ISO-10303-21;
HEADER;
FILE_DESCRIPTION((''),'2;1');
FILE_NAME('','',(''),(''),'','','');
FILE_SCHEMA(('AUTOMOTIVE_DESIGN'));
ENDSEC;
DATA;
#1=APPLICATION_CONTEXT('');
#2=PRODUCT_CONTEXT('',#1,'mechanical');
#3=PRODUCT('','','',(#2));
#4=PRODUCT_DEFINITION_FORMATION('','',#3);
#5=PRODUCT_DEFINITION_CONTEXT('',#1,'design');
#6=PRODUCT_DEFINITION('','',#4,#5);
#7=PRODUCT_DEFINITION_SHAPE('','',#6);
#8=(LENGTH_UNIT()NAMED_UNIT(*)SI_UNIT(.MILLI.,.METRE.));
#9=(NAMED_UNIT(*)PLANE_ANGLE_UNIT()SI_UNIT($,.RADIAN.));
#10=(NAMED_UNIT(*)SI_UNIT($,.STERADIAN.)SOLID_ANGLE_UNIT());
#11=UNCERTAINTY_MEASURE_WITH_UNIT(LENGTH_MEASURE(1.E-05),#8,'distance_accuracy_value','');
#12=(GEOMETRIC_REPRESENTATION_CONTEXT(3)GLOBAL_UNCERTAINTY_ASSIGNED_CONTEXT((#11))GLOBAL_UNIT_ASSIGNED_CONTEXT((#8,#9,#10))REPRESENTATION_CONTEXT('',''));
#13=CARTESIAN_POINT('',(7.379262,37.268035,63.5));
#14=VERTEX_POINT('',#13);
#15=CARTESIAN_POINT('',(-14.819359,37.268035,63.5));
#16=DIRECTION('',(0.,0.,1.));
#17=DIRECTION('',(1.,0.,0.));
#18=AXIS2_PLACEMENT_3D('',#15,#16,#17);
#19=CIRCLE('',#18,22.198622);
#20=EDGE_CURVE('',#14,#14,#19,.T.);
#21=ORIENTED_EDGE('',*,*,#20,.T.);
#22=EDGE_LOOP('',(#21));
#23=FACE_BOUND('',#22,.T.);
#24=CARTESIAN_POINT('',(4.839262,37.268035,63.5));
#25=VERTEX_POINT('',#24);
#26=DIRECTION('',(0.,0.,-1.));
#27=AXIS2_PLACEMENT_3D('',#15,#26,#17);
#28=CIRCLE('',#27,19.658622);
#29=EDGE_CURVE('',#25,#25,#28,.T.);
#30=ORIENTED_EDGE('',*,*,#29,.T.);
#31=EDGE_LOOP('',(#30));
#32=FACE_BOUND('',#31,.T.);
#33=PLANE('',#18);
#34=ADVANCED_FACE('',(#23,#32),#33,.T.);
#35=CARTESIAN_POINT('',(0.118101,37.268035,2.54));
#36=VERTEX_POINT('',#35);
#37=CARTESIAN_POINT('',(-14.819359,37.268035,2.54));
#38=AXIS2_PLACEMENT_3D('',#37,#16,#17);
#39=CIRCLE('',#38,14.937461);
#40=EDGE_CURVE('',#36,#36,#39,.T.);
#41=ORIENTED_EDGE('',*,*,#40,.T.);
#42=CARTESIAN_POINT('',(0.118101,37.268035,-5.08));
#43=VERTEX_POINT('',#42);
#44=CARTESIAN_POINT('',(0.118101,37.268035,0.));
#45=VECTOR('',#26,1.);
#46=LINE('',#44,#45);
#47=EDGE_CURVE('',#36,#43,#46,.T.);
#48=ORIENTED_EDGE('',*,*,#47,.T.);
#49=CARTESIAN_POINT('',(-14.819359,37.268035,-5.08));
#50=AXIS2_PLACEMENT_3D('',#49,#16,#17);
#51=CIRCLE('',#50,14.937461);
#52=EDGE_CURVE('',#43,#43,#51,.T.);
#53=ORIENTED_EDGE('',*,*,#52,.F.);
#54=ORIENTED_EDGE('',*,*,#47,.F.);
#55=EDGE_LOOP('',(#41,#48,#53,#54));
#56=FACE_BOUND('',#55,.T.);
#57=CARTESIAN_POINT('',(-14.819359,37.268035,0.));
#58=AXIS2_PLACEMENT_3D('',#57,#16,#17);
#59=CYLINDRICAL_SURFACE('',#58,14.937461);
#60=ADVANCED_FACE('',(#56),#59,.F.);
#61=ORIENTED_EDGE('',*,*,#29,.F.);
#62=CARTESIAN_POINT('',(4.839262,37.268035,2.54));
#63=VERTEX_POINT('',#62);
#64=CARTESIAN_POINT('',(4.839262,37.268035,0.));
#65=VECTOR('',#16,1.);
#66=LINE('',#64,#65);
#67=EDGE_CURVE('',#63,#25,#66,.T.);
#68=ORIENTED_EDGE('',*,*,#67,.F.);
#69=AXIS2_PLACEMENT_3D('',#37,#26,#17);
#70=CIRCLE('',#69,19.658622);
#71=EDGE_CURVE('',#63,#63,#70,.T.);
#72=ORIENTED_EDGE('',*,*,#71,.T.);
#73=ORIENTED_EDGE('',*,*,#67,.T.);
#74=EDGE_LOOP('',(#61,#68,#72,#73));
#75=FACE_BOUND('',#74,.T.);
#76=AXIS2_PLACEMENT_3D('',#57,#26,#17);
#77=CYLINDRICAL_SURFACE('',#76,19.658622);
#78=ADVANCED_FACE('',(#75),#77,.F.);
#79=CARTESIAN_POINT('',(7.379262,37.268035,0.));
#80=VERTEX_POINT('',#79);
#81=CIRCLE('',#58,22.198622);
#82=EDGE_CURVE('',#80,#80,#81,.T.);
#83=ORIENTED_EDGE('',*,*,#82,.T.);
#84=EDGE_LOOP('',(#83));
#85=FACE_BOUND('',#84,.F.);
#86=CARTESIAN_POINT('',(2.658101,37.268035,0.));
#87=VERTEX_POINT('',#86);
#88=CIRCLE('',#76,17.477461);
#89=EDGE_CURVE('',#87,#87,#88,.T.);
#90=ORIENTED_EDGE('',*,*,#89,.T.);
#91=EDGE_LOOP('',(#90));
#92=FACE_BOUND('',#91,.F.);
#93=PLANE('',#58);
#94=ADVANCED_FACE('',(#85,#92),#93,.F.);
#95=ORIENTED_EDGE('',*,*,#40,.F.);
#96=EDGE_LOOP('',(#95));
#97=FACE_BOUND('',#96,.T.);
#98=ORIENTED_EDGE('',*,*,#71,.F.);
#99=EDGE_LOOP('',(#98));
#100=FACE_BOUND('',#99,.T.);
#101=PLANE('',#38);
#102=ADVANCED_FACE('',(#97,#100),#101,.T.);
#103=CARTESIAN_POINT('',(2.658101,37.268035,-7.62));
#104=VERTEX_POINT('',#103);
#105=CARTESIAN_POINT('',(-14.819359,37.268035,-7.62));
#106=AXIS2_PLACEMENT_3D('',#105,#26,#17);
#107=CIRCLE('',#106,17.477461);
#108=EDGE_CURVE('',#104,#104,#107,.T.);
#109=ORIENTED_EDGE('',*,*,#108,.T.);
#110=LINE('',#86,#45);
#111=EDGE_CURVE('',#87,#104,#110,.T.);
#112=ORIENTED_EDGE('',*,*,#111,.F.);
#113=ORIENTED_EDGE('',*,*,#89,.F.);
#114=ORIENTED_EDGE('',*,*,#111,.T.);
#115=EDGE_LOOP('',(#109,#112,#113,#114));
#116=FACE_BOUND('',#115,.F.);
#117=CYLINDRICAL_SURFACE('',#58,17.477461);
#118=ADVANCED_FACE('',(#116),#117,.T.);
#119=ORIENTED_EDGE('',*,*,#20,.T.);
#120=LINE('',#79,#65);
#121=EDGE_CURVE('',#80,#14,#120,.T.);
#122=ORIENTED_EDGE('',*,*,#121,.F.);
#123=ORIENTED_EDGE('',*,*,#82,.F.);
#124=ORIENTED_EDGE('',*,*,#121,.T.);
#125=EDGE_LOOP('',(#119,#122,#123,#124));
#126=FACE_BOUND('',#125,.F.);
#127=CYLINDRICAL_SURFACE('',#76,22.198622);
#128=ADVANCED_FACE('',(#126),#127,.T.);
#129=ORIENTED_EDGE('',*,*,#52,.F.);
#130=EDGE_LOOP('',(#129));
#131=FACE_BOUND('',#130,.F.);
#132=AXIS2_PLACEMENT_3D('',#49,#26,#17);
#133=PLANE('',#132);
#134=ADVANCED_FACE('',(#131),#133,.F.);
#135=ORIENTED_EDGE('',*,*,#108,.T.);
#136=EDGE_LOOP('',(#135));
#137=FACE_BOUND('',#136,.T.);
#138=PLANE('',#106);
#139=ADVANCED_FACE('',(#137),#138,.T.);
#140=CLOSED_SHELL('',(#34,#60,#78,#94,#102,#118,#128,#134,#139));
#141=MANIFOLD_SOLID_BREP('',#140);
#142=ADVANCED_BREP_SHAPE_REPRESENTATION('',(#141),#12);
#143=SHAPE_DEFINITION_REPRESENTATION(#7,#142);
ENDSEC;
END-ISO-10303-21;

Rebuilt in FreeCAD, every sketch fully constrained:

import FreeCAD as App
import Part
import Sketcher
Q = App.Units.Quantity


def faces_at(feature, points):
    """Names of the faces that lie closest to the given points."""
    faces = feature.Shape.Faces
    near = lambda p: min(range(len(faces)), key=lambda i: faces[i].distToShape(Part.Vertex(*p))[0])
    return sorted({f"Face{near(p) + 1}" for p in points})

doc = App.newDocument("Part")
body = doc.addObject("PartDesign::Body", "Body")

# Sketch on XY plane
sketch1 = doc.addObject("Sketcher::SketchObject", "Sketch")
body.addObject(sketch1)
sketch1.AttachmentSupport = (doc.XY_Plane, [""])
sketch1.MapMode = "FlatFace"
sketch1.addGeometry(Part.Circle(App.Vector(-14.819359, 37.268035, 0), App.Vector(0, 0, 1), 22.198622), False)
sketch1.addConstraint(Sketcher.Constraint("Diameter", 0, 44.397243))
sketch1.addConstraint(Sketcher.Constraint("DistanceX", 0, 3, -1, 1, 14.819359))
sketch1.addConstraint(Sketcher.Constraint("DistanceY", -1, 1, 0, 3, 37.268035))
pad1 = doc.addObject("PartDesign::Pad", "Pad")
body.addObject(pad1)
pad1.Profile = sketch1
pad1.Length = Q("2.5 in")

# Sketch on XY plane
sketch2 = doc.addObject("Sketcher::SketchObject", "Sketch001")
body.addObject(sketch2)
sketch2.AttachmentSupport = (doc.XY_Plane, [""])
sketch2.MapMode = "FlatFace"
sketch2.addGeometry(Part.Circle(App.Vector(-14.819359, 37.268035, 0), App.Vector(0, 0, 1), 17.477461), False)
sketch2.addConstraint(Sketcher.Constraint("Diameter", 0, 34.954922))
sketch2.addConstraint(Sketcher.Constraint("DistanceX", 0, 3, -1, 1, 14.819359))
sketch2.addConstraint(Sketcher.Constraint("DistanceY", -1, 1, 0, 3, 37.268035))
pad2 = doc.addObject("PartDesign::Pad", "Pad001")
body.addObject(pad2)
pad2.Profile = sketch2
pad2.Length = Q("0.3 in")
pad2.Reversed = True
doc.recompute()

thickness = doc.addObject("PartDesign::Thickness", "Thickness")
body.addObject(thickness)
thickness.Base = (pad2, faces_at(pad2, [(-14.819, 37.268, 63.5)]))
thickness.Value = Q("0.1 in")
thickness.Reversed = True
thickness.Join = "Intersection"

doc.recompute()
